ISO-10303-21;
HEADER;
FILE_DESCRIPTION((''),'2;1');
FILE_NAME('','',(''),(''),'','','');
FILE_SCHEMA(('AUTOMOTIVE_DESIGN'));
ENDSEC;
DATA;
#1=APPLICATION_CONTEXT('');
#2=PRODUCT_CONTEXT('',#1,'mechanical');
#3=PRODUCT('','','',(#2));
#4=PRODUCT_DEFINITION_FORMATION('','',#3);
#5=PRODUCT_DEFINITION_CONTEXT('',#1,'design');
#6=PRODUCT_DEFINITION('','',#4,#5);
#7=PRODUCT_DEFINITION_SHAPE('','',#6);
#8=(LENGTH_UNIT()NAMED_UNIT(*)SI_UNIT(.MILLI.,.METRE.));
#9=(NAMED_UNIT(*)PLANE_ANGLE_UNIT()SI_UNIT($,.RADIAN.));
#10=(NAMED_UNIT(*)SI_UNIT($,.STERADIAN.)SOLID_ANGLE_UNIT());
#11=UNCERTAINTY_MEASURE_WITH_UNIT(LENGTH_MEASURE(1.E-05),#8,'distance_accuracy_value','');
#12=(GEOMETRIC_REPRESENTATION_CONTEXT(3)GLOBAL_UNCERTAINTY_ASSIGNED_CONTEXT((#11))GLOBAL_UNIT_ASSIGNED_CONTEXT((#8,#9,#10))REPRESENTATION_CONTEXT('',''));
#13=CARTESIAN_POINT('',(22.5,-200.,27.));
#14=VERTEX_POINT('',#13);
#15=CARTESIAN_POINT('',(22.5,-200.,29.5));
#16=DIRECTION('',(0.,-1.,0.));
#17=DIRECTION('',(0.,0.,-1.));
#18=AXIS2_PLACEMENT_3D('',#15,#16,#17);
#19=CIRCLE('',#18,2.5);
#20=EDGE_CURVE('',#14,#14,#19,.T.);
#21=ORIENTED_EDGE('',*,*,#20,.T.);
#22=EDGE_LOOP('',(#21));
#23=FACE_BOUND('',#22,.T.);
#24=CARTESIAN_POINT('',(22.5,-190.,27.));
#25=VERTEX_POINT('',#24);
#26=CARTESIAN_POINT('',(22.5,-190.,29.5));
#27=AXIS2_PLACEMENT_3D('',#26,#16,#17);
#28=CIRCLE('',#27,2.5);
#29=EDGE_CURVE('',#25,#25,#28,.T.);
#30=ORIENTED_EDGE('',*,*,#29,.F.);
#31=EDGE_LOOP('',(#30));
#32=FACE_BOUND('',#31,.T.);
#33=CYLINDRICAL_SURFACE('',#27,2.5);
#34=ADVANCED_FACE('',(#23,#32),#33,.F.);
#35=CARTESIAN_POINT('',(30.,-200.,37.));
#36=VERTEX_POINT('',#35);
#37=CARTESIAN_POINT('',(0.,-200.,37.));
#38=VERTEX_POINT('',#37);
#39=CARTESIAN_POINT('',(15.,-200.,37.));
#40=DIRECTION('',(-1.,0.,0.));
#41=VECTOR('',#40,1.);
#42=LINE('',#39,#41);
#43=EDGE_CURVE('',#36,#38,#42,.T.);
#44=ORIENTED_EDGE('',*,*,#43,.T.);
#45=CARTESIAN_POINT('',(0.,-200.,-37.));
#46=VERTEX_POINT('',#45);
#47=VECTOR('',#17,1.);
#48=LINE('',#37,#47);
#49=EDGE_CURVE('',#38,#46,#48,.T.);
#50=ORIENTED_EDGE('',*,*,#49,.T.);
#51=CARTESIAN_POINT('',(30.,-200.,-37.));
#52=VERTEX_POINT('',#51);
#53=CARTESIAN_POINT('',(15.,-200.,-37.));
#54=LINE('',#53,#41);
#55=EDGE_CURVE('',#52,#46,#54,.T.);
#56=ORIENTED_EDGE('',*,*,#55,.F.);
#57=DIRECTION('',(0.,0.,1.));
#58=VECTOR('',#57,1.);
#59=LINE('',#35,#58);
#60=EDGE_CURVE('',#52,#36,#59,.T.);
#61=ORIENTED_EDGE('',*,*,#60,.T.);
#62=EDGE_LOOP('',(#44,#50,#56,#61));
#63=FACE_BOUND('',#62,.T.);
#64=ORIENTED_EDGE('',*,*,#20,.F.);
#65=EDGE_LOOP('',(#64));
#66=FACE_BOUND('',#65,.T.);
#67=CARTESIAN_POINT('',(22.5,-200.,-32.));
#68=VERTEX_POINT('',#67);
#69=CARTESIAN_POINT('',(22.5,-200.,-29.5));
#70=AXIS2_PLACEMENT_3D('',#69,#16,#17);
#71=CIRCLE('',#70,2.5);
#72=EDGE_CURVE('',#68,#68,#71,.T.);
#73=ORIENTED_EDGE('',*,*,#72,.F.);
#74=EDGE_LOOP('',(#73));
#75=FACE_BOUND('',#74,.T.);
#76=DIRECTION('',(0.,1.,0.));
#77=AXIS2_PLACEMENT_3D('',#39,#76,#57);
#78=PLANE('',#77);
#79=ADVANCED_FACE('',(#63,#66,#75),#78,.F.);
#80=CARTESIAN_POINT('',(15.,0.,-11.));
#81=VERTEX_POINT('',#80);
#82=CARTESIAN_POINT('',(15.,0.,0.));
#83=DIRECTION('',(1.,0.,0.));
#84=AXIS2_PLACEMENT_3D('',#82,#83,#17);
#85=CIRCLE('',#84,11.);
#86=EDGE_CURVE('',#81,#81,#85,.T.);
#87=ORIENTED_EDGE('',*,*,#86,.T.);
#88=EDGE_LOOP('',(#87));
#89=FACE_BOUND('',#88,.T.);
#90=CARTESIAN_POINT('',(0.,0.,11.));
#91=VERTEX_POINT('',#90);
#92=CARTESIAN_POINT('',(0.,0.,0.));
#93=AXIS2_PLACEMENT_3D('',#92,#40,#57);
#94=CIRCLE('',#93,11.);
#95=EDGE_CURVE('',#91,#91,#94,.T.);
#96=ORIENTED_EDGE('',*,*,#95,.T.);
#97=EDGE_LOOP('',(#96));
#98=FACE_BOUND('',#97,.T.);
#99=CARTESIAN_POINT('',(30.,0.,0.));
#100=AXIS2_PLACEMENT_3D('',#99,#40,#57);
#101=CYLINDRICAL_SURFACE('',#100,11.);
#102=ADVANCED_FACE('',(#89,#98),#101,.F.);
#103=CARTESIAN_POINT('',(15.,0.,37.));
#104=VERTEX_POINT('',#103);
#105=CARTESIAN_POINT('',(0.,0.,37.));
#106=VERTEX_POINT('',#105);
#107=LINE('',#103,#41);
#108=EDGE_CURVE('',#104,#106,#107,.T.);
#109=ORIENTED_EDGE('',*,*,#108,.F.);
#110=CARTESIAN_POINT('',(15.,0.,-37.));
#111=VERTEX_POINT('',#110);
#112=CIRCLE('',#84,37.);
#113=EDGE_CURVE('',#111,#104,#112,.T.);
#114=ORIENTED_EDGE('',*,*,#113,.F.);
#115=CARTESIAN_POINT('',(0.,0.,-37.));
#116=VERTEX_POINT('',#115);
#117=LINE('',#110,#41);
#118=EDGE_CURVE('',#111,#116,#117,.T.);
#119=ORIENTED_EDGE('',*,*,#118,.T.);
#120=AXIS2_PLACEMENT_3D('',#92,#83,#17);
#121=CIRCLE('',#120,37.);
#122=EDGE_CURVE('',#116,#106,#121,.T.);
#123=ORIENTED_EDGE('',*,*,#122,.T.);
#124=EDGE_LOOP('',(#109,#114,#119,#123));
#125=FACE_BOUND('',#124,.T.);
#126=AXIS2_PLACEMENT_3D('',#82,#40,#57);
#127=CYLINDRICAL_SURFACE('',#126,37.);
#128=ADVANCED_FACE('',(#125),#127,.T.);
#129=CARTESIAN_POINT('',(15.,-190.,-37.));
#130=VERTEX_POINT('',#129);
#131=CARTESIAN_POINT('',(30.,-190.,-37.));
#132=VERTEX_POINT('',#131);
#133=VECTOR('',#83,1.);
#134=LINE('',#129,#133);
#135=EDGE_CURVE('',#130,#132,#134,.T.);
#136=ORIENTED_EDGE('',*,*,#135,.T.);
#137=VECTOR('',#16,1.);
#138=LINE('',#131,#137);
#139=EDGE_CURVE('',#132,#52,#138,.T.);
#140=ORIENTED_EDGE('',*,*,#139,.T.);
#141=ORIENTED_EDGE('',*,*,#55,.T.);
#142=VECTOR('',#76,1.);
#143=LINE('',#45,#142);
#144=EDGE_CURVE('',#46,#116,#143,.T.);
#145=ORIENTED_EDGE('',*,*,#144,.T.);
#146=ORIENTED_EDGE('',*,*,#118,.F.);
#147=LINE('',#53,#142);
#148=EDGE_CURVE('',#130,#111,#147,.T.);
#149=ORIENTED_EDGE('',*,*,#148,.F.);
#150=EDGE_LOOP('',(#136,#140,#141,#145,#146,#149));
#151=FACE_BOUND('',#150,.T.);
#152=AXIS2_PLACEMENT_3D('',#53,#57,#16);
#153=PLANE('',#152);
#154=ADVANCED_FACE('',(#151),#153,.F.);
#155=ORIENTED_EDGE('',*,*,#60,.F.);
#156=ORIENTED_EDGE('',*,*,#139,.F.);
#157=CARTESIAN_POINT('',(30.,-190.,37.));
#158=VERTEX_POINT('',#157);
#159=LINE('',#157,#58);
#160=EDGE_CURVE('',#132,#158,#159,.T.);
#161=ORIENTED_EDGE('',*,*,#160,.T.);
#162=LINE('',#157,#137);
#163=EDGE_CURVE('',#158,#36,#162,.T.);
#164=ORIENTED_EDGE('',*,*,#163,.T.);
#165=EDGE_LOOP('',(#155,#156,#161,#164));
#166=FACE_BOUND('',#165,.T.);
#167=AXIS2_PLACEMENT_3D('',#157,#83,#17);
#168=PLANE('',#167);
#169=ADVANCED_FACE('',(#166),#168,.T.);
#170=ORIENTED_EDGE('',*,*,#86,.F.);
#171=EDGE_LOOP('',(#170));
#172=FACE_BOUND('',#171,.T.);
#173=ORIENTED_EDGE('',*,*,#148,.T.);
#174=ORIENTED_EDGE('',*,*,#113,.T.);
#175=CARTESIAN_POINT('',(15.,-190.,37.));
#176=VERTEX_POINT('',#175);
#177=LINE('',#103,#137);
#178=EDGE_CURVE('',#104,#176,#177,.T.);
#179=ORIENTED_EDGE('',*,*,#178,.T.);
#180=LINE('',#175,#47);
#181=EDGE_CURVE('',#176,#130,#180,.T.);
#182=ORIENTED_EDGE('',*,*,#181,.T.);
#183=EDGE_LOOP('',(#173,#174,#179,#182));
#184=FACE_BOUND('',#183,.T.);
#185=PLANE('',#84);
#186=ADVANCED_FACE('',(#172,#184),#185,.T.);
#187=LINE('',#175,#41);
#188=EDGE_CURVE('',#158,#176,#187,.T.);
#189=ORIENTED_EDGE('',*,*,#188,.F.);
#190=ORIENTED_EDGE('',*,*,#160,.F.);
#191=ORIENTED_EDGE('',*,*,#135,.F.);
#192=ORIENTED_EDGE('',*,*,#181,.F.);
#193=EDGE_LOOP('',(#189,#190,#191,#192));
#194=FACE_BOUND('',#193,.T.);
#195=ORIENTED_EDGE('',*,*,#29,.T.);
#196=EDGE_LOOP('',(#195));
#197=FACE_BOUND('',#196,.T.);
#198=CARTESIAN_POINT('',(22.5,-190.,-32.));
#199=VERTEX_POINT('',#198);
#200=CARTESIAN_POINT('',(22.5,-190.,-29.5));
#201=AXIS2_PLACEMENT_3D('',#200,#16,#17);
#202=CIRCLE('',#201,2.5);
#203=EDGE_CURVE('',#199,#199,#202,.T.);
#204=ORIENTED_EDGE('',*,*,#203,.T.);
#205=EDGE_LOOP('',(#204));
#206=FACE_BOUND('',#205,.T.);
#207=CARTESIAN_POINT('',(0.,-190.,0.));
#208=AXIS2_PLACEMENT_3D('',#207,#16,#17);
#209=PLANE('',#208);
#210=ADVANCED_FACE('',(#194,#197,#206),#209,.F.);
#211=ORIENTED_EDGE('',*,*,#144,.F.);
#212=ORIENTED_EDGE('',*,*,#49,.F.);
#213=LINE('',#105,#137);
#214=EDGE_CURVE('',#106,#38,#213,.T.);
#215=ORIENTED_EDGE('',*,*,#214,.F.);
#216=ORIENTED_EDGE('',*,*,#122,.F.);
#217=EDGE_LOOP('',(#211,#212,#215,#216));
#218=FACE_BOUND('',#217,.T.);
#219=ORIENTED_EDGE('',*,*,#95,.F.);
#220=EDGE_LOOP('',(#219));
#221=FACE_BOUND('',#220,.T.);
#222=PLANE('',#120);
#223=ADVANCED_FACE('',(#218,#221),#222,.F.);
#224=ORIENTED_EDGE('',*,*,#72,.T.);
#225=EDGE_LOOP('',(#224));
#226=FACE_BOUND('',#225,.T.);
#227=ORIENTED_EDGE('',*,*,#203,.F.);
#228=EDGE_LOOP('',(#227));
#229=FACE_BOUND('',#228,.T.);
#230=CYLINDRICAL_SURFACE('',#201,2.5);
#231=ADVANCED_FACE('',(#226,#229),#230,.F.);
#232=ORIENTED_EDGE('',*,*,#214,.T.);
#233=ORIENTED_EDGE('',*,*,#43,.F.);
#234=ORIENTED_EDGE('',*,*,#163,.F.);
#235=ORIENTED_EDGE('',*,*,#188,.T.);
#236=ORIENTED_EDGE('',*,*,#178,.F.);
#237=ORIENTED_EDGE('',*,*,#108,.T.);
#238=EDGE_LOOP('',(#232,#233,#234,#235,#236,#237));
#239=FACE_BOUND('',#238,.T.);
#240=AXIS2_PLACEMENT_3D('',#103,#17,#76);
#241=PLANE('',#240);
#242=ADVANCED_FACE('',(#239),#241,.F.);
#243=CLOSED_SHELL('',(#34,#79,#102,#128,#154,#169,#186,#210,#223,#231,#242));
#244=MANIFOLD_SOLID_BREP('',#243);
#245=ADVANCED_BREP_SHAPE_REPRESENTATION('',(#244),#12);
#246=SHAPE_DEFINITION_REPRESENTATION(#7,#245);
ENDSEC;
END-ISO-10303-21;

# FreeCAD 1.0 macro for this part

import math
import FreeCAD as App
import Part
import Sketcher

V = App.Vector
Q = App.Units.Quantity


def add_polygon(sketch, points):
    """Adds a closed chain of lines whose ends are joined by coincident constraints."""
    first, n = sketch.GeometryCount, len(points)
    for a, b in zip(points, points[1:] + points[:1]):
        sketch.addGeometry(Part.LineSegment(App.Vector(*a, 0), App.Vector(*b, 0)), False)
    for i in range(n):
        sketch.addConstraint(Sketcher.Constraint("Coincident", first + i, 2, first + (i + 1) % n, 1))

doc = App.newDocument("Part")
body = doc.addObject("PartDesign::Body", "Body")

# Sketch on YZ plane
sketch1 = body.newObject("Sketcher::SketchObject", "Sketch")
sketch1.AttachmentSupport = (doc.getObject("YZ_Plane"), [""])
sketch1.MapMode = "FlatFace"
sketch1.addGeometry([
    Part.LineSegment(V(0, 37, 0), V(-200, 37, 0)),
    Part.LineSegment(V(-200, 37, 0), V(-200, -37, 0)),
    Part.LineSegment(V(-200, -37, 0), V(0, -37, 0)),
    Part.ArcOfCircle(Part.Circle(V(0, 0, 0), V(0, 0, 1), 37), math.radians(-90), math.radians(90)),
], False)
sketch1.addConstraint([
    Sketcher.Constraint("Coincident", 0, 2, 1, 1),
    Sketcher.Constraint("Coincident", 1, 2, 2, 1),
    Sketcher.Constraint("Tangent", 2, 2, 3, 1),
    Sketcher.Constraint("Tangent", 3, 2, 0, 1),
    Sketcher.Constraint("Horizontal", 0),
    Sketcher.Constraint("Vertical", 1),
    Sketcher.Constraint("Horizontal", 2),
    Sketcher.Constraint("Coincident", 3, 3, -1, 1),
    Sketcher.Constraint("Radius", 3, Q("37 mm")),
    Sketcher.Constraint("DistanceX", 0, 2, 0, 1, Q("200 mm")),
])
pad1 = body.newObject("PartDesign::Pad", "Pad")
pad1.Profile = sketch1
pad1.Length = 15

# Sketch on XZ plane
sketch2 = body.newObject("Sketcher::SketchObject", "Sketch001")
sketch2.AttachmentSupport = (doc.getObject("XZ_Plane"), [""])
sketch2.MapMode = "FlatFace"
sketch2.AttachmentOffset = App.Placement(V(0, 0, 200), App.Rotation())
add_polygon(sketch2, [(15, 37), (15, -37), (30, -37), (30, 37)])  # lines 0-3
sketch2.addConstraint([
    Sketcher.Constraint("Vertical", 0),
    Sketcher.Constraint("Horizontal", 1),
    Sketcher.Constraint("Vertical", 2),
    Sketcher.Constraint("Horizontal", 3),
    Sketcher.Constraint("DistanceX", 1, 1, 1, 2, Q("15 mm")),
    Sketcher.Constraint("DistanceY", 0, 2, 0, 1, Q("74 mm")),
    Sketcher.Constraint("DistanceX", -1, 1, 0, 2, Q("15 mm")),
    Sketcher.Constraint("DistanceY", 0, 2, -1, 1, Q("37 mm")),
])
pad2 = body.newObject("PartDesign::Pad", "Pad001")
pad2.Profile = sketch2
pad2.Length = 10
pad2.Reversed = True

# Sketch on XZ plane
sketch3 = body.newObject("Sketcher::SketchObject", "Sketch002")
sketch3.AttachmentSupport = (doc.getObject("XZ_Plane"), [""])
sketch3.MapMode = "FlatFace"
sketch3.AttachmentOffset = App.Placement(V(0, 0, 200), App.Rotation())
sketch3.addGeometry([
    Part.Circle(V(22.5, 29.5, 0), V(0, 0, 1), 2.5),
    Part.Circle(V(22.5, -29.5, 0), V(0, 0, 1), 2.5),
], False)
sketch3.addConstraint([
    Sketcher.Constraint("Equal", 0, 1),
    Sketcher.Constraint("Symmetric", 0, 3, 1, 3, -1),
    Sketcher.Constraint("Diameter", 0, Q("5 mm")),
    Sketcher.Constraint("DistanceY", 1, 3, 0, 3, Q("59 mm")),
    Sketcher.Constraint("DistanceX", -1, 1, 0, 3, Q("22.5 mm")),
])
pocket1 = body.newObject("PartDesign::Pocket", "Pocket")
pocket1.Profile = sketch3
pocket1.Length = 10

# Sketch on YZ plane
sketch4 = body.newObject("Sketcher::SketchObject", "Sketch003")
sketch4.AttachmentSupport = (doc.getObject("YZ_Plane"), [""])
sketch4.MapMode = "FlatFace"
sketch4.addGeometry(Part.Circle(V(0, 0, 0), V(0, 0, 1), 11), False)
sketch4.addConstraint([
    Sketcher.Constraint("Coincident", 0, 3, -1, 1),
    Sketcher.Constraint("Diameter", 0, Q("22 mm")),
])
pocket2 = body.newObject("PartDesign::Pocket", "Pocket001")
pocket2.Profile = sketch4
pocket2.Type = "ThroughAll"
pocket2.Reversed = True

doc.recompute()
